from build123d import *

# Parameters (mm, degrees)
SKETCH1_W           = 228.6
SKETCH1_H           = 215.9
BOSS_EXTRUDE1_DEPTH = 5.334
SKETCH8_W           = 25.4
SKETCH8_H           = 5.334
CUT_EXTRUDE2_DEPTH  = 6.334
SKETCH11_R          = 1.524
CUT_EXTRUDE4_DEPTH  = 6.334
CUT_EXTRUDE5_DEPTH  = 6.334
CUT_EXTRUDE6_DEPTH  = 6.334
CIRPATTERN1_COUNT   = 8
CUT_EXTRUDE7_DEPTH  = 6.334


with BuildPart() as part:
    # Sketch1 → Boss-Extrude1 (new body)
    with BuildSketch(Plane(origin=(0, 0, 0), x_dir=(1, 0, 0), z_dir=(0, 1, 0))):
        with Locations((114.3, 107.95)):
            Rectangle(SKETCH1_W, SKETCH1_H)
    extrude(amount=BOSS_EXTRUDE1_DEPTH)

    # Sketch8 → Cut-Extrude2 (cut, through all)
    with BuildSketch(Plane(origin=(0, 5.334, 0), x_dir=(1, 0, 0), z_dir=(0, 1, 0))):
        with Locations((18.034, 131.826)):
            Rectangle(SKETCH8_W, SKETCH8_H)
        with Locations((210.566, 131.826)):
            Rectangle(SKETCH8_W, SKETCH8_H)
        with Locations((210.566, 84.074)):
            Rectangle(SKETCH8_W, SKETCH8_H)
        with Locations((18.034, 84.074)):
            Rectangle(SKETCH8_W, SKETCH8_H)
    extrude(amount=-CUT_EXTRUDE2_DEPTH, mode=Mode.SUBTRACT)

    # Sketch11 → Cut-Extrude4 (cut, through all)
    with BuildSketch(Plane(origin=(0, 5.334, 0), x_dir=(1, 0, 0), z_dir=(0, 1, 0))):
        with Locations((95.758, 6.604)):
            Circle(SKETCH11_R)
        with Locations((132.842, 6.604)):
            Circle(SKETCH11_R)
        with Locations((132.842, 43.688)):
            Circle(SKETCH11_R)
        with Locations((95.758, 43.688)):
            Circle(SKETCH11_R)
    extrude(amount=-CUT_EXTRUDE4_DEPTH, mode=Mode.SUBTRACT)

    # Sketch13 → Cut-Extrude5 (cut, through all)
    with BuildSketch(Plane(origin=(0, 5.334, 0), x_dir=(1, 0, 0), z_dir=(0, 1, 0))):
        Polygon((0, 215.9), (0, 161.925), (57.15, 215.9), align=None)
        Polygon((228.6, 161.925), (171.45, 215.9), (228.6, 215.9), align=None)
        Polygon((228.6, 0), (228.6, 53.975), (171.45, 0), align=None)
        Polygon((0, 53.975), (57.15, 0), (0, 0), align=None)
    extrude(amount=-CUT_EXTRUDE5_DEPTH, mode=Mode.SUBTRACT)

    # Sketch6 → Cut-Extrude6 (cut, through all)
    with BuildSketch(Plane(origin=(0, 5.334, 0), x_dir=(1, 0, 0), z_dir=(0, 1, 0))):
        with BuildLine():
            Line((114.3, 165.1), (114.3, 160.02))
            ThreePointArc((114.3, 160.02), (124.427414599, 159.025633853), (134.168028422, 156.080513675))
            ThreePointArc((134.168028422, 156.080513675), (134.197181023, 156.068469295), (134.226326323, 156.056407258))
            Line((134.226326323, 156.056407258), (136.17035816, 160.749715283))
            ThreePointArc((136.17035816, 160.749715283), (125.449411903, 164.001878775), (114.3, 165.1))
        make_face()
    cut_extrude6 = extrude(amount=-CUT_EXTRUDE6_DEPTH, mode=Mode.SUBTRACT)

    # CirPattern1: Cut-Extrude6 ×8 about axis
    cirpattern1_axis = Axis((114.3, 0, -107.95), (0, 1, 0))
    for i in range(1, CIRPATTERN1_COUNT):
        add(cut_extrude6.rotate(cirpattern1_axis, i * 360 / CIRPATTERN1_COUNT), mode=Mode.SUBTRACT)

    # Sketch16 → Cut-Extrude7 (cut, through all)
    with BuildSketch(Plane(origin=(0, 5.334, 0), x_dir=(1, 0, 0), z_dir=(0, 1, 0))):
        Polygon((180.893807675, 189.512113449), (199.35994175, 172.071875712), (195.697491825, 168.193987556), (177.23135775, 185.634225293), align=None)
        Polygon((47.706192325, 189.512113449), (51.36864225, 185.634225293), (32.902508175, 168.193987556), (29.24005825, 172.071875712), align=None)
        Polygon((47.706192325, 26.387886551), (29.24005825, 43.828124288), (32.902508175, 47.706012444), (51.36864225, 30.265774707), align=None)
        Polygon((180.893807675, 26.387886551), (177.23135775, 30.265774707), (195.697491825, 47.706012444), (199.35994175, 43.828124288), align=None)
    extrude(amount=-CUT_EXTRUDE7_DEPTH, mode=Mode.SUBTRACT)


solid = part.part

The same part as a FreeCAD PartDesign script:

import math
import FreeCAD as App
import Part
import Sketcher
from FreeCAD import Vector
Q = App.Units.Quantity


def add_polygon(sketch, points):
    """Adds a closed chain of lines whose ends are joined by coincident constraints."""
    first, n = sketch.GeometryCount, len(points)
    for a, b in zip(points, points[1:] + points[:1]):
        sketch.addGeometry(Part.LineSegment(App.Vector(*a, 0), App.Vector(*b, 0)), False)
    for i in range(n):
        sketch.addConstraint(Sketcher.Constraint("Coincident", first + i, 2, first + (i + 1) % n, 1))

doc = App.newDocument("Part")
params = doc.addObject("Spreadsheet::Sheet", "Params")
for row, (alias, value) in enumerate([
    ("sketch1_width", "9 in"),
    ("sketch1_height", "8.5 in"),
    ("pad1_length", "0.21 in"),
    ("sketch2_width", "1 in"),
    ("sketch2_height", "0.21 in"),
    ("sketch3_diameter", "0.12 in"),
    ("sketch4_width", "2.25 in"),
    ("sketch4_height", "2.125 in"),
    ("sketch5_radius", "2.05 in"),
    ("sketch5_radius2", "2.25 in"),
    ("sketch6_length", "1 in"),
    ("sketch6_length2", "0.21 in"),
], start=1):
    params.set(f"A{row}", alias)
    params.set(f"B{row}", "=" + value)
    params.setAlias(f"B{row}", alias)

body = doc.addObject("PartDesign::Body", "Body")

# Sketch on XZ plane
sketch1 = body.newObject("Sketcher::SketchObject", "Sketch")
sketch1.AttachmentSupport = (doc.getObject("XZ_Plane"), [""])
sketch1.MapMode = "FlatFace"
add_polygon(sketch1, [(0, -216), (0, 0), (229, 0), (229, -216)])  # lines 0-3
sketch1.addConstraint([
    Sketcher.Constraint("Vertical", 0),
    Sketcher.Constraint("Horizontal", 1),
    Sketcher.Constraint("Vertical", 2),
    Sketcher.Constraint("Horizontal", 3),
    Sketcher.Constraint("Coincident", 0, 2, -1, 1),
    Sketcher.Constraint("DistanceX", 1, 1, 1, 2, Q("9 in")),
    Sketcher.Constraint("DistanceY", 0, 1, 0, 2, Q("8.5 in")),
])
sketch1.setExpression("Constraints[9]", "Params.sketch1_width")
sketch1.setExpression("Constraints[10]", "Params.sketch1_height")
pad1 = body.newObject("PartDesign::Pad", "Pad")
pad1.Profile = sketch1
pad1.setExpression("Length", "Params.pad1_length")
pad1.Reversed = True

# Sketch on XZ plane
sketch2 = body.newObject("Sketcher::SketchObject", "Sketch001")
sketch2.AttachmentSupport = (doc.getObject("XZ_Plane"), [""])
sketch2.MapMode = "FlatFace"
sketch2.AttachmentOffset = App.Placement(Vector(0, 0, -0.21 * 25.4), App.Rotation())
add_polygon(sketch2, [(5, -134), (5, -129), (31, -129), (31, -134)])  # lines 0-3
add_polygon(sketch2, [(198, -134), (198, -129), (223, -129), (223, -134)])  # lines 4-7
add_polygon(sketch2, [(198, -87), (198, -81), (223, -81), (223, -87)])  # lines 8-11
add_polygon(sketch2, [(5, -87), (5, -81), (31, -81), (31, -87)])  # lines 12-15
sketch2.addConstraint([
    Sketcher.Constraint("Vertical", 0),
    Sketcher.Constraint("Horizontal", 1),
    Sketcher.Constraint("Vertical", 2),
    Sketcher.Constraint("Horizontal", 3),
    Sketcher.Constraint("Vertical", 4),
    Sketcher.Constraint("Horizontal", 5),
    Sketcher.Constraint("Vertical", 6),
    Sketcher.Constraint("Horizontal", 7),
    Sketcher.Constraint("Vertical", 8),
    Sketcher.Constraint("Horizontal", 9),
    Sketcher.Constraint("Vertical", 10),
    Sketcher.Constraint("Horizontal", 11),
    Sketcher.Constraint("Vertical", 12),
    Sketcher.Constraint("Horizontal", 13),
    Sketcher.Constraint("Vertical", 14),
    Sketcher.Constraint("Horizontal", 15),
    Sketcher.Constraint("Horizontal", 1, 2, 4, 2),
    Sketcher.Constraint("Horizontal", 3, 2, 6, 2),
    Sketcher.Constraint("Horizontal", 9, 2, 12, 2),
    Sketcher.Constraint("Horizontal", 11, 2, 14, 2),
    Sketcher.Constraint("Vertical", 7, 2, 8, 2),
    Sketcher.Constraint("Vertical", 6, 2, 9, 2),
    Sketcher.Constraint("Vertical", 3, 2, 12, 2),
    Sketcher.Constraint("Vertical", 2, 2, 13, 2),
    Sketcher.Constraint("Equal", 3, 5),
    Sketcher.Constraint("Equal", 6, 8),
    Sketcher.Constraint("DistanceX", 1, 1, 1, 2, Q("1 in")),
    Sketcher.Constraint("DistanceY", 0, 1, 0, 2, Q("0.21 in")),
    Sketcher.Constraint("DistanceX", -1, 1, 0, 2, Q("0.21 in")),
    Sketcher.Constraint("DistanceX", -1, 1, 4, 2, Q("7.79 in")),
    Sketcher.Constraint("DistanceY", 4, 2, 8, 2, Q("1.88 in")),
    Sketcher.Constraint("DistanceY", 0, 2, -1, 1, Q("5.085 in")),
])
sketch2.setExpression("Constraints[42]", "Params.sketch2_width")
sketch2.setExpression("Constraints[43]", "Params.sketch2_height")
pocket1 = body.newObject("PartDesign::Pocket", "Pocket")
pocket1.Profile = sketch2
pocket1.Type = "ThroughAll"
pocket1.Reversed = True

# Sketch on XZ plane
sketch3 = body.newObject("Sketcher::SketchObject", "Sketch002")
sketch3.AttachmentSupport = (doc.getObject("XZ_Plane"), [""])
sketch3.MapMode = "FlatFace"
sketch3.AttachmentOffset = App.Placement(Vector(0, 0, -0.21 * 25.4), App.Rotation())
sketch3.addGeometry([
    Part.Circle(Vector(95.8, -6.6, 0), Vector(0, 0, 1), 1.5),
    Part.Circle(Vector(132.8, -6.6, 0), Vector(0, 0, 1), 1.5),
    Part.Circle(Vector(132.8, -43.7, 0), Vector(0, 0, 1), 1.5),
    Part.Circle(Vector(95.8, -43.7, 0), Vector(0, 0, 1), 1.5),
], False)
sketch3.addConstraint([
    Sketcher.Constraint("Equal", 0, 1),
    Sketcher.Constraint("Equal", 1, 2),
    Sketcher.Constraint("Equal", 2, 3),
    Sketcher.Constraint("Horizontal", 0, 3, 1, 3),
    Sketcher.Constraint("Horizontal", 2, 3, 3, 3),
    Sketcher.Constraint("Vertical", 1, 3, 2, 3),
    Sketcher.Constraint("Vertical", 0, 3, 3, 3),
    Sketcher.Constraint("Diameter", 0, Q("0.12 in")),
    Sketcher.Constraint("DistanceX", -1, 1, 0, 3, Q("3.77 in")),
    Sketcher.Constraint("DistanceY", 0, 3, -1, 1, Q("0.26 in")),
    Sketcher.Constraint("DistanceX", -1, 1, 1, 3, Q("5.23 in")),
    Sketcher.Constraint("DistanceY", 2, 3, -1, 1, Q("1.72 in")),
])
sketch3.setExpression("Constraints[7]", "Params.sketch3_diameter")
pocket2 = body.newObject("PartDesign::Pocket", "Pocket001")
pocket2.Profile = sketch3
pocket2.Type = "ThroughAll"
pocket2.Reversed = True

# Sketch on XZ plane
sketch4 = body.newObject("Sketcher::SketchObject", "Sketch003")
sketch4.AttachmentSupport = (doc.getObject("XZ_Plane"), [""])
sketch4.MapMode = "FlatFace"
sketch4.AttachmentOffset = App.Placement(Vector(0, 0, -0.21 * 25.4), App.Rotation())
add_polygon(sketch4, [(0, -216), (0, -162), (57, -216)])  # lines 0-2
add_polygon(sketch4, [(171, -216), (229, -162), (229, -216)])  # lines 3-5
add_polygon(sketch4, [(229, 0), (229, -54), (171, 0)])  # lines 6-8
add_polygon(sketch4, [(57, 0), (0, -54), (0, 0)])  # lines 9-11
sketch4.addConstraint([
    Sketcher.Constraint("Vertical", 0),
    Sketcher.Constraint("Horizontal", 2),
    Sketcher.Constraint("Vertical", 4),
    Sketcher.Constraint("Horizontal", 5),
    Sketcher.Constraint("Vertical", 6),
    Sketcher.Constraint("Horizontal", 8),
    Sketcher.Constraint("Vertical", 10),
    Sketcher.Constraint("Horizontal", 11),
    Sketcher.Constraint("Coincident", 10, 2, -1, 1),
    Sketcher.Constraint("PointOnObject", 0, 2, -2),
    Sketcher.Constraint("PointOnObject", 7, 2, -1),
    Sketcher.Constraint("Parallel", 1, 7),
    Sketcher.Constraint("Parallel", 3, 9),
    Sketcher.Constraint("Horizontal", 0, 2, 3, 2),
    Sketcher.Constraint("Horizontal", 2, 2, 4, 2),
    Sketcher.Constraint("Horizontal", 6, 2, 9, 2),
    Sketcher.Constraint("Vertical", 4, 2, 6, 2),
    Sketcher.Constraint("Vertical", 5, 2, 7, 2),
    Sketcher.Constraint("Vertical", 1, 2, 11, 2),
    Sketcher.Constraint("DistanceX", -1, 1, 3, 2, Q("9 in")),
    Sketcher.Constraint("DistanceX", 2, 2, 2, 1, Q("2.25 in")),
    Sketcher.Constraint("DistanceY", 1, 2, -1, 1, Q("8.5 in")),
    Sketcher.Constraint("DistanceY", 0, 1, 0, 2, Q("2.125 in")),
])
sketch4.setExpression("Constraints[32]", "Params.sketch4_width")
sketch4.setExpression("Constraints[34]", "Params.sketch4_height")
pocket3 = body.newObject("PartDesign::Pocket", "Pocket002")
pocket3.Profile = sketch4
pocket3.Type = "ThroughAll"
pocket3.Reversed = True

# Sketch on XZ plane
sketch5 = body.newObject("Sketcher::SketchObject", "Sketch004")
sketch5.AttachmentSupport = (doc.getObject("XZ_Plane"), [""])
sketch5.MapMode = "FlatFace"
sketch5.AttachmentOffset = App.Placement(Vector(0, 0, -0.21 * 25.4), App.Rotation())
sketch5.addGeometry([
    Part.LineSegment(Vector(114.3, -165.1, 0), Vector(114.3, -160.02, 0)),  # 0
    Part.ArcOfCircle(Part.Circle(Vector(114.3, -107.95, 0), Vector(0, 0, 1), 52.07), math.radians(-90), math.radians(-68)),  # 1
    Part.ArcOfCircle(Part.Circle(Vector(114.3, -107.95, 0), Vector(0, 0, 1), 52.07), math.radians(-67.57), math.radians(-67.5)),  # 2
    Part.LineSegment(Vector(134.23, -156.06, 0), Vector(136.17, -160.75, 0)),  # 3
    Part.ArcOfCircle(Part.Circle(Vector(114.3, -107.95, 0), Vector(0, 0, 1), 57.15), math.radians(-90), math.radians(-68)),  # 4
], False)
sketch5.addConstraint([
    Sketcher.Constraint("Coincident", 0, 2, 1, 1),
    Sketcher.Constraint("Tangent", 1, 2, 2, 1),
    Sketcher.Constraint("Coincident", 2, 2, 3, 1),
    Sketcher.Constraint("Coincident", 3, 2, 4, 2),
    Sketcher.Constraint("Coincident", 4, 1, 0, 1),
    Sketcher.Constraint("Vertical", 0),
    Sketcher.Constraint("Coincident", 4, 3, 1, 3),
    Sketcher.Constraint("Vertical", 4, 3, 0, 2),
    Sketcher.Constraint("Radius", 1, Q("2.05 in")),
    Sketcher.Constraint("Radius", 4, Q("2.25 in")),
    Sketcher.Constraint("DistanceX", -1, 1, 1, 3, Q("4.5 in")),
    Sketcher.Constraint("DistanceY", 0, 2, -1, 1, Q("6.3 in")),
    Sketcher.Constraint("Angle", 3, Q("-67.5 deg")),
    Sketcher.Constraint("Radius", 2, 52.072309),
    Sketcher.Constraint("DistanceY", 3, 2, 1, 2, 4.669202),
    Sketcher.Constraint("DistanceX", -1, 1, 1, 2, 134.168028),
])
sketch5.setExpression("Constraints[8]", "Params.sketch5_radius")
sketch5.setExpression("Constraints[9]", "Params.sketch5_radius2")
pocket4 = body.newObject("PartDesign::Pocket", "Pocket003")
pocket4.Profile = sketch5
pocket4.Type = "ThroughAll"
pocket4.Reversed = True
doc.recompute()

datumline = body.newObject("PartDesign::Line", "DatumLine")
datumline.Placement = App.Placement(Vector(114.3, 0, -107.95), App.Rotation(Vector(0, 0, 1), Vector(0, 1, 0)))
polarpattern = body.newObject("PartDesign::PolarPattern", "PolarPattern")
polarpattern.Originals = [pocket4]
polarpattern.Axis = (datumline, [""])
polarpattern.Angle = 360
polarpattern.Occurrences = 8
body.Tip = polarpattern

# Sketch on XZ plane
sketch6 = body.newObject("Sketcher::SketchObject", "Sketch005")
sketch6.AttachmentSupport = (doc.getObject("XZ_Plane"), [""])
sketch6.MapMode = "FlatFace"
sketch6.AttachmentOffset = App.Placement(Vector(0, 0, -0.21 * 25.4), App.Rotation())
add_polygon(sketch6, [(199, -172), (181, -190), (177, -186), (196, -168)])  # lines 0-3
add_polygon(sketch6, [(51, -186), (48, -190), (29, -172), (33, -168)])  # lines 4-7
add_polygon(sketch6, [(29, -44), (48, -26), (51, -30), (33, -48)])  # lines 8-11
add_polygon(sketch6, [(177, -30), (181, -26), (199, -44), (196, -48)])  # lines 12-15
sketch6.addConstraint([
    Sketcher.Constraint("Perpendicular", 0, 1),
    Sketcher.Constraint("Perpendicular", 1, 2),
    Sketcher.Constraint("Perpendicular", 2, 3),
    Sketcher.Constraint("Perpendicular", 4, 5),
    Sketcher.Constraint("Perpendicular", 5, 6),
    Sketcher.Constraint("Perpendicular", 6, 7),
    Sketcher.Constraint("Perpendicular", 3, 8),
    Sketcher.Constraint("Perpendicular", 8, 9),
    Sketcher.Constraint("Perpendicular", 9, 10),
    Sketcher.Constraint("Perpendicular", 10, 11),
    Sketcher.Constraint("Perpendicular", 7, 12),
    Sketcher.Constraint("Perpendicular", 12, 13),
    Sketcher.Constraint("Perpendicular", 13, 14),
    Sketcher.Constraint("Perpendicular", 14, 15),
    Sketcher.Constraint("Horizontal", 0, 2, 4, 2),
    Sketcher.Constraint("Horizontal", 3, 2, 5, 2),
    Sketcher.Constraint("Horizontal", 2, 2, 6, 2),
    Sketcher.Constraint("Horizontal", 8, 2, 12, 2),
    Sketcher.Constraint("Horizontal", 11, 2, 13, 2),
    Sketcher.Constraint("Horizontal", 10, 2, 14, 2),
    Sketcher.Constraint("Vertical", 4, 2, 8, 2),
    Sketcher.Constraint("Vertical", 7, 2, 9, 2),
    Sketcher.Constraint("Vertical", 6, 2, 10, 2),
    Sketcher.Constraint("Vertical", 0, 2, 12, 2),
    Sketcher.Constraint("Vertical", 3, 2, 13, 2),
    Sketcher.Constraint("Distance", 0, Q("1 in")),
    Sketcher.Constraint("Distance", 1, Q("0.21 in")),
    Sketcher.Constraint("DistanceX", 4, 2, 2, 2, 147.991299),
    Sketcher.Constraint("DistanceY", 6, 2, 8, 2, 141.806101),
    Sketcher.Constraint("DistanceX", -1, 1, 2, 2, 195.697492),
    Sketcher.Constraint("DistanceX", -1, 1, 3, 2, 199.359942),
    Sketcher.Constraint("DistanceY", 0, 2, -1, 1, 189.512113),
])
sketch6.setExpression("Constraints[41]", "Params.sketch6_length")
sketch6.setExpression("Constraints[42]", "Params.sketch6_length2")
pocket5 = body.newObject("PartDesign::Pocket", "Pocket004")
pocket5.Profile = sketch6
pocket5.Type = "ThroughAll"
pocket5.Reversed = True

doc.recompute()
